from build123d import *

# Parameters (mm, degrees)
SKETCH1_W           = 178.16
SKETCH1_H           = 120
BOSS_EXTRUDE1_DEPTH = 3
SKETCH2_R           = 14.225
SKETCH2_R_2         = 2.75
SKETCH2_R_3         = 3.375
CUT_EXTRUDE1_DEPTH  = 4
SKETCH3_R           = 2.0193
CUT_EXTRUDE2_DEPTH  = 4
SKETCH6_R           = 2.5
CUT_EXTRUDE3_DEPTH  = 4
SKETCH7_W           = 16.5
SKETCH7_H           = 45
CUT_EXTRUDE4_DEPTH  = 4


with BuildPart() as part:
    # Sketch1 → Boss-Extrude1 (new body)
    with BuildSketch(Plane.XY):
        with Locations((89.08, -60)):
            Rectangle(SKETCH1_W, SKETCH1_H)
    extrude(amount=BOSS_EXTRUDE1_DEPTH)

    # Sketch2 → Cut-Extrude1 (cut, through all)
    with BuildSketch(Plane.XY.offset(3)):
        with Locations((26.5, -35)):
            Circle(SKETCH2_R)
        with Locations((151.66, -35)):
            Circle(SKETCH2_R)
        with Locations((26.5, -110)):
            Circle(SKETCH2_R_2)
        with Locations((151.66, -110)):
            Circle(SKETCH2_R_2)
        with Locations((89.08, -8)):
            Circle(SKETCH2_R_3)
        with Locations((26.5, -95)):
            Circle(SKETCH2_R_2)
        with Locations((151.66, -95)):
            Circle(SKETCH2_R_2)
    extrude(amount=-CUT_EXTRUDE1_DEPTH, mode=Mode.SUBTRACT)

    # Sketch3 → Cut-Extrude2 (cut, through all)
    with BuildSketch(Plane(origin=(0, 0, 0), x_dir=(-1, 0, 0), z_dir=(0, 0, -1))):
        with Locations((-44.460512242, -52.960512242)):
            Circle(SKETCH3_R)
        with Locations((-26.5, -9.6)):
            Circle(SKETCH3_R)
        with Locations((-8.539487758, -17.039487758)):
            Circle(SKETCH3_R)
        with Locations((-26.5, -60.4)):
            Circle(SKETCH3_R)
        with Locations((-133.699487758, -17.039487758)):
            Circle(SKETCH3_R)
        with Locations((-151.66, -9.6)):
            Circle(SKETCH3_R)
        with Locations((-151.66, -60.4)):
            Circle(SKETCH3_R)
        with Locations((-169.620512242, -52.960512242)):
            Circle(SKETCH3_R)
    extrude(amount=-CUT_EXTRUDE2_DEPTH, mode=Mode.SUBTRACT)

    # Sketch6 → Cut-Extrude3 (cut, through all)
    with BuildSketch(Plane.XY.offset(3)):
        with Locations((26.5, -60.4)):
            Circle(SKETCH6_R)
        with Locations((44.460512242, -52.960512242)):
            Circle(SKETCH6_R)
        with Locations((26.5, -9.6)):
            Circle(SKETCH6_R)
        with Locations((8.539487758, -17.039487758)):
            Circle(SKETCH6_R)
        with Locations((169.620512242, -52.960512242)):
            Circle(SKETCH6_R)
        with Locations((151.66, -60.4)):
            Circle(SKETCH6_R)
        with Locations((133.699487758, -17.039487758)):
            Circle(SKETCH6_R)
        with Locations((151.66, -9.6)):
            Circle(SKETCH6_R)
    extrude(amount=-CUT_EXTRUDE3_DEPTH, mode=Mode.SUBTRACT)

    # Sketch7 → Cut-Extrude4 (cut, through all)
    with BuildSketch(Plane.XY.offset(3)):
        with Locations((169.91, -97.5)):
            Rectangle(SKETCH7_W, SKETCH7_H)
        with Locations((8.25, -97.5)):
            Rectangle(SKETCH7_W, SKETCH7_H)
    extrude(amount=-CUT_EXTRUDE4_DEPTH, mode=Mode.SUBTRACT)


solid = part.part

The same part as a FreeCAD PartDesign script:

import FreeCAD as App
import Part
import Sketcher
from FreeCAD import Vector

doc = App.newDocument("Part")
params = doc.addObject("Spreadsheet::Sheet", "Params")
for row, (alias, value) in enumerate([
    ("sketch1_height", "120 mm"),
    ("sketch1_width", "178.16 mm"),
    ("pad1_length", "3 mm"),
    ("sketch2_diameter", "5.5 mm"),
    ("sketch2_diameter2", "28.45 mm"),
    ("sketch2_diameter3", "6.75 mm"),
    ("sketch4_diameter", "5 mm"),
    ("sketch5_height", "45 mm"),
    ("sketch5_width", "16.5 mm"),
], start=1):
    params.set(f"A{row}", alias)
    params.set(f"B{row}", "=" + value)
    params.setAlias(f"B{row}", alias)

body = doc.addObject("PartDesign::Body", "Body")

sketch1 = body.newObject("Sketcher::SketchObject", "Sketch")
sketch1.AttachmentSupport = (doc.getObject("XY_Plane"), [""])
sketch1.MapMode = "FlatFace"
sketch1.addGeometry([
    Part.LineSegment(Vector(0, 0, 0), Vector(0, -120, 0)),
    Part.LineSegment(Vector(0, -120, 0), Vector(178, -120, 0)),
    Part.LineSegment(Vector(178, -120, 0), Vector(178, 0, 0)),
    Part.LineSegment(Vector(178, 0, 0), Vector(0, 0, 0)),
], False)
sketch1.addConstraint([
    Sketcher.Constraint("Coincident", 0, 2, 1, 1),
    Sketcher.Constraint("Coincident", 1, 2, 2, 1),
    Sketcher.Constraint("Coincident", 2, 2, 3, 1),
    Sketcher.Constraint("Coincident", 3, 2, 0, 1),
    Sketcher.Constraint("Vertical", 0),
    Sketcher.Constraint("Horizontal", 1),
    Sketcher.Constraint("Vertical", 2),
    Sketcher.Constraint("Horizontal", 3),
    Sketcher.Constraint("Coincident", 3, 2, -1, 1),
    Sketcher.Constraint("DistanceY", 0, 2, 0, 1, 120.0),
    Sketcher.Constraint("DistanceX", 1, 1, 1, 2, 178.16),
])
sketch1.setExpression("Constraints[9]", "Params.sketch1_height")
sketch1.setExpression("Constraints[10]", "Params.sketch1_width")
pad1 = body.newObject("PartDesign::Pad", "Pad")
pad1.Profile = sketch1
pad1.setExpression("Length", "Params.pad1_length")

sketch2 = body.newObject("Sketcher::SketchObject", "Sketch001")
sketch2.AttachmentSupport = (doc.getObject("XY_Plane"), [""])
sketch2.MapMode = "FlatFace"
sketch2.AttachmentOffset = App.Placement(Vector(0, 0, 3), App.Rotation())
sketch2.addGeometry([
    Part.Circle(Vector(26.5, -35, 0), Vector(0, 0, 1), 14.2),
    Part.Circle(Vector(151.7, -35, 0), Vector(0, 0, 1), 14.2),
    Part.Circle(Vector(26.5, -110, 0), Vector(0, 0, 1), 2.8),
    Part.Circle(Vector(151.7, -110, 0), Vector(0, 0, 1), 2.8),
    Part.Circle(Vector(89.1, -8, 0), Vector(0, 0, 1), 3.4),
    Part.Circle(Vector(26.5, -95, 0), Vector(0, 0, 1), 2.8),
    Part.Circle(Vector(151.7, -95, 0), Vector(0, 0, 1), 2.8),
], False)
sketch2.addConstraint([
    Sketcher.Constraint("Equal", 0, 1),
    Sketcher.Constraint("Equal", 2, 3),
    Sketcher.Constraint("Equal", 3, 5),
    Sketcher.Constraint("Equal", 5, 6),
    Sketcher.Constraint("Horizontal", 0, 3, 1, 3),
    Sketcher.Constraint("Horizontal", 2, 3, 3, 3),
    Sketcher.Constraint("Horizontal", 5, 3, 6, 3),
    Sketcher.Constraint("Vertical", 0, 3, 2, 3),
    Sketcher.Constraint("Vertical", 1, 3, 3, 3),
    Sketcher.Constraint("Vertical", 2, 3, 5, 3),
    Sketcher.Constraint("Vertical", 3, 3, 6, 3),
    Sketcher.Constraint("Diameter", 2, 5.5),
    Sketcher.Constraint("Diameter", 0, 28.45),
    Sketcher.Constraint("Diameter", 4, 6.75),
    Sketcher.Constraint("DistanceY", 0, 3, -1, 1, 35.0),
    Sketcher.Constraint("DistanceY", 2, 3, -1, 1, 110.0),
    Sketcher.Constraint("DistanceY", 4, 3, -1, 1, 8.0),
    Sketcher.Constraint("DistanceY", 5, 3, -1, 1, 95.0),
    Sketcher.Constraint("DistanceX", -1, 1, 0, 3, 26.5),
    Sketcher.Constraint("DistanceX", -1, 1, 1, 3, 151.66),
    Sketcher.Constraint("DistanceX", -1, 1, 4, 3, 89.08),
])
sketch2.setExpression("Constraints[11]", "Params.sketch2_diameter")
sketch2.setExpression("Constraints[12]", "Params.sketch2_diameter2")
sketch2.setExpression("Constraints[13]", "Params.sketch2_diameter3")
pocket1 = body.newObject("PartDesign::Pocket", "Pocket")
pocket1.Profile = sketch2
pocket1.Type = "ThroughAll"

sketch3 = body.newObject("Sketcher::SketchObject", "Sketch002")
sketch3.AttachmentSupport = (doc.getObject("XY_Plane"), [""])
sketch3.MapMode = "FlatFace"
sketch3.addGeometry([
    Part.Circle(Vector(44.5, -53, 0), Vector(0, 0, 1), 2),
    Part.Circle(Vector(26.5, -9.6, 0), Vector(0, 0, 1), 2),
    Part.Circle(Vector(8.5, -17, 0), Vector(0, 0, 1), 2),
    Part.Circle(Vector(26.5, -60.4, 0), Vector(0, 0, 1), 2),
    Part.Circle(Vector(133.7, -17, 0), Vector(0, 0, 1), 2),
    Part.Circle(Vector(151.7, -9.6, 0), Vector(0, 0, 1), 2),
    Part.Circle(Vector(151.7, -60.4, 0), Vector(0, 0, 1), 2),
    Part.Circle(Vector(169.6, -53, 0), Vector(0, 0, 1), 2),
], False)
sketch3.addConstraint([
    Sketcher.Constraint("Equal", 0, 1),
    Sketcher.Constraint("Equal", 1, 2),
    Sketcher.Constraint("Equal", 2, 3),
    Sketcher.Constraint("Equal", 3, 4),
    Sketcher.Constraint("Equal", 4, 5),
    Sketcher.Constraint("Equal", 5, 6),
    Sketcher.Constraint("Equal", 6, 7),
    Sketcher.Constraint("Horizontal", 2, 3, 4, 3),
    Sketcher.Constraint("Horizontal", 1, 3, 5, 3),
    Sketcher.Constraint("Horizontal", 3, 3, 6, 3),
    Sketcher.Constraint("Horizontal", 0, 3, 7, 3),
    Sketcher.Constraint("Vertical", 1, 3, 3, 3),
    Sketcher.Constraint("Vertical", 5, 3, 6, 3),
    Sketcher.Constraint("Diameter", 0, 4.0386),
    Sketcher.Constraint("DistanceX", -1, 1, 1, 3, 26.5),
    Sketcher.Constraint("DistanceY", 1, 3, -1, 1, 9.6),
    Sketcher.Constraint("DistanceY", 3, 3, -1, 1, 60.4),
    Sketcher.Constraint("DistanceX", -1, 1, 5, 3, 151.66),
    Sketcher.Constraint("DistanceX", 2, 3, 4, 3, 125.16),
    Sketcher.Constraint("DistanceX", 0, 3, 7, 3, 125.16),
    Sketcher.Constraint("DistanceX", -1, 1, 0, 3, 44.460512),
    Sketcher.Constraint("DistanceY", 0, 3, -1, 1, 52.960512),
    Sketcher.Constraint("DistanceX", -1, 1, 2, 3, 8.539488),
    Sketcher.Constraint("DistanceY", 2, 3, -1, 1, 17.039488),
])
pocket2 = body.newObject("PartDesign::Pocket", "Pocket001")
pocket2.Profile = sketch3
pocket2.Type = "ThroughAll"
pocket2.Reversed = True

sketch4 = body.newObject("Sketcher::SketchObject", "Sketch003")
sketch4.AttachmentSupport = (doc.getObject("XY_Plane"), [""])
sketch4.MapMode = "FlatFace"
sketch4.AttachmentOffset = App.Placement(Vector(0, 0, 3), App.Rotation())
sketch4.addGeometry([
    Part.Circle(Vector(26.5, -60.4, 0), Vector(0, 0, 1), 2.5),
    Part.Circle(Vector(44.5, -53, 0), Vector(0, 0, 1), 2.5),
    Part.Circle(Vector(26.5, -9.6, 0), Vector(0, 0, 1), 2.5),
    Part.Circle(Vector(8.5, -17, 0), Vector(0, 0, 1), 2.5),
    Part.Circle(Vector(169.6, -53, 0), Vector(0, 0, 1), 2.5),
    Part.Circle(Vector(151.7, -60.4, 0), Vector(0, 0, 1), 2.5),
    Part.Circle(Vector(133.7, -17, 0), Vector(0, 0, 1), 2.5),
    Part.Circle(Vector(151.7, -9.6, 0), Vector(0, 0, 1), 2.5),
], False)
sketch4.addConstraint([
    Sketcher.Constraint("Equal", 0, 1),
    Sketcher.Constraint("Equal", 1, 2),
    Sketcher.Constraint("Equal", 2, 3),
    Sketcher.Constraint("Equal", 3, 4),
    Sketcher.Constraint("Equal", 4, 5),
    Sketcher.Constraint("Equal", 5, 6),
    Sketcher.Constraint("Equal", 6, 7),
    Sketcher.Constraint("Horizontal", 1, 3, 4, 3),
    Sketcher.Constraint("Horizontal", 0, 3, 5, 3),
    Sketcher.Constraint("Horizontal", 3, 3, 6, 3),
    Sketcher.Constraint("Horizontal", 2, 3, 7, 3),
    Sketcher.Constraint("Vertical", 0, 3, 2, 3),
    Sketcher.Constraint("Vertical", 5, 3, 7, 3),
    Sketcher.Constraint("Diameter", 0, 5.0),
    Sketcher.Constraint("DistanceX", -1, 1, 0, 3, 26.5),
    Sketcher.Constraint("DistanceY", 0, 3, -1, 1, 60.4),
    Sketcher.Constraint("DistanceY", 2, 3, -1, 1, 9.6),
    Sketcher.Constraint("DistanceX", -1, 1, 5, 3, 151.66),
    Sketcher.Constraint("DistanceX", 1, 3, 4, 3, 125.16),
    Sketcher.Constraint("DistanceX", -1, 1, 1, 3, 44.460512),
    Sketcher.Constraint("DistanceY", 1, 3, -1, 1, 52.960512),
    Sketcher.Constraint("DistanceX", -1, 1, 3, 3, 8.539488),
    Sketcher.Constraint("DistanceY", 3, 3, -1, 1, 17.039488),
    Sketcher.Constraint("DistanceX", -1, 1, 6, 3, 133.699488),
])
sketch4.setExpression("Constraints[13]", "Params.sketch4_diameter")
pocket3 = body.newObject("PartDesign::Pocket", "Pocket002")
pocket3.Profile = sketch4
pocket3.Type = "ThroughAll"

sketch5 = body.newObject("Sketcher::SketchObject", "Sketch004")
sketch5.AttachmentSupport = (doc.getObject("XY_Plane"), [""])
sketch5.MapMode = "FlatFace"
sketch5.AttachmentOffset = App.Placement(Vector(0, 0, 3), App.Rotation())
sketch5.addGeometry([
    Part.LineSegment(Vector(162, -75, 0), Vector(162, -120, 0)),
    Part.LineSegment(Vector(162, -120, 0), Vector(178, -120, 0)),
    Part.LineSegment(Vector(178, -120, 0), Vector(178, -75, 0)),
    Part.LineSegment(Vector(178, -75, 0), Vector(162, -75, 0)),
    Part.LineSegment(Vector(0, -75, 0), Vector(0, -120, 0)),
    Part.LineSegment(Vector(0, -120, 0), Vector(16, -120, 0)),
    Part.LineSegment(Vector(16, -120, 0), Vector(16, -75, 0)),
    Part.LineSegment(Vector(16, -75, 0), Vector(0, -75, 0)),
], False)
sketch5.addConstraint([
    Sketcher.Constraint("Coincident", 0, 2, 1, 1),
    Sketcher.Constraint("Coincident", 1, 2, 2, 1),
    Sketcher.Constraint("Coincident", 2, 2, 3, 1),
    Sketcher.Constraint("Coincident", 3, 2, 0, 1),
    Sketcher.Constraint("Coincident", 4, 2, 5, 1),
    Sketcher.Constraint("Coincident", 5, 2, 6, 1),
    Sketcher.Constraint("Coincident", 6, 2, 7, 1),
    Sketcher.Constraint("Coincident", 7, 2, 4, 1),
    Sketcher.Constraint("Vertical", 0),
    Sketcher.Constraint("Horizontal", 1),
    Sketcher.Constraint("Vertical", 2),
    Sketcher.Constraint("Horizontal", 3),
    Sketcher.Constraint("Vertical", 4),
    Sketcher.Constraint("Horizontal", 5),
    Sketcher.Constraint("Vertical", 6),
    Sketcher.Constraint("Horizontal", 7),
    Sketcher.Constraint("PointOnObject", 4, 2, -2),
    Sketcher.Constraint("Horizontal", 1, 2, 4, 2),
    Sketcher.Constraint("Horizontal", 3, 2, 6, 2),
    Sketcher.Constraint("Equal", 3, 5),
    Sketcher.Constraint("DistanceY", 0, 2, 0, 1, 45.0),
    Sketcher.Constraint("DistanceX", 1, 1, 1, 2, 16.5),
    Sketcher.Constraint("DistanceY", 0, 2, -1, 1, 120.0),
    Sketcher.Constraint("DistanceX", -1, 1, 0, 2, 161.66),
])
sketch5.setExpression("Constraints[20]", "Params.sketch5_height")
sketch5.setExpression("Constraints[21]", "Params.sketch5_width")
pocket4 = body.newObject("PartDesign::Pocket", "Pocket003")
pocket4.Profile = sketch5
pocket4.Type = "ThroughAll"

doc.recompute()
